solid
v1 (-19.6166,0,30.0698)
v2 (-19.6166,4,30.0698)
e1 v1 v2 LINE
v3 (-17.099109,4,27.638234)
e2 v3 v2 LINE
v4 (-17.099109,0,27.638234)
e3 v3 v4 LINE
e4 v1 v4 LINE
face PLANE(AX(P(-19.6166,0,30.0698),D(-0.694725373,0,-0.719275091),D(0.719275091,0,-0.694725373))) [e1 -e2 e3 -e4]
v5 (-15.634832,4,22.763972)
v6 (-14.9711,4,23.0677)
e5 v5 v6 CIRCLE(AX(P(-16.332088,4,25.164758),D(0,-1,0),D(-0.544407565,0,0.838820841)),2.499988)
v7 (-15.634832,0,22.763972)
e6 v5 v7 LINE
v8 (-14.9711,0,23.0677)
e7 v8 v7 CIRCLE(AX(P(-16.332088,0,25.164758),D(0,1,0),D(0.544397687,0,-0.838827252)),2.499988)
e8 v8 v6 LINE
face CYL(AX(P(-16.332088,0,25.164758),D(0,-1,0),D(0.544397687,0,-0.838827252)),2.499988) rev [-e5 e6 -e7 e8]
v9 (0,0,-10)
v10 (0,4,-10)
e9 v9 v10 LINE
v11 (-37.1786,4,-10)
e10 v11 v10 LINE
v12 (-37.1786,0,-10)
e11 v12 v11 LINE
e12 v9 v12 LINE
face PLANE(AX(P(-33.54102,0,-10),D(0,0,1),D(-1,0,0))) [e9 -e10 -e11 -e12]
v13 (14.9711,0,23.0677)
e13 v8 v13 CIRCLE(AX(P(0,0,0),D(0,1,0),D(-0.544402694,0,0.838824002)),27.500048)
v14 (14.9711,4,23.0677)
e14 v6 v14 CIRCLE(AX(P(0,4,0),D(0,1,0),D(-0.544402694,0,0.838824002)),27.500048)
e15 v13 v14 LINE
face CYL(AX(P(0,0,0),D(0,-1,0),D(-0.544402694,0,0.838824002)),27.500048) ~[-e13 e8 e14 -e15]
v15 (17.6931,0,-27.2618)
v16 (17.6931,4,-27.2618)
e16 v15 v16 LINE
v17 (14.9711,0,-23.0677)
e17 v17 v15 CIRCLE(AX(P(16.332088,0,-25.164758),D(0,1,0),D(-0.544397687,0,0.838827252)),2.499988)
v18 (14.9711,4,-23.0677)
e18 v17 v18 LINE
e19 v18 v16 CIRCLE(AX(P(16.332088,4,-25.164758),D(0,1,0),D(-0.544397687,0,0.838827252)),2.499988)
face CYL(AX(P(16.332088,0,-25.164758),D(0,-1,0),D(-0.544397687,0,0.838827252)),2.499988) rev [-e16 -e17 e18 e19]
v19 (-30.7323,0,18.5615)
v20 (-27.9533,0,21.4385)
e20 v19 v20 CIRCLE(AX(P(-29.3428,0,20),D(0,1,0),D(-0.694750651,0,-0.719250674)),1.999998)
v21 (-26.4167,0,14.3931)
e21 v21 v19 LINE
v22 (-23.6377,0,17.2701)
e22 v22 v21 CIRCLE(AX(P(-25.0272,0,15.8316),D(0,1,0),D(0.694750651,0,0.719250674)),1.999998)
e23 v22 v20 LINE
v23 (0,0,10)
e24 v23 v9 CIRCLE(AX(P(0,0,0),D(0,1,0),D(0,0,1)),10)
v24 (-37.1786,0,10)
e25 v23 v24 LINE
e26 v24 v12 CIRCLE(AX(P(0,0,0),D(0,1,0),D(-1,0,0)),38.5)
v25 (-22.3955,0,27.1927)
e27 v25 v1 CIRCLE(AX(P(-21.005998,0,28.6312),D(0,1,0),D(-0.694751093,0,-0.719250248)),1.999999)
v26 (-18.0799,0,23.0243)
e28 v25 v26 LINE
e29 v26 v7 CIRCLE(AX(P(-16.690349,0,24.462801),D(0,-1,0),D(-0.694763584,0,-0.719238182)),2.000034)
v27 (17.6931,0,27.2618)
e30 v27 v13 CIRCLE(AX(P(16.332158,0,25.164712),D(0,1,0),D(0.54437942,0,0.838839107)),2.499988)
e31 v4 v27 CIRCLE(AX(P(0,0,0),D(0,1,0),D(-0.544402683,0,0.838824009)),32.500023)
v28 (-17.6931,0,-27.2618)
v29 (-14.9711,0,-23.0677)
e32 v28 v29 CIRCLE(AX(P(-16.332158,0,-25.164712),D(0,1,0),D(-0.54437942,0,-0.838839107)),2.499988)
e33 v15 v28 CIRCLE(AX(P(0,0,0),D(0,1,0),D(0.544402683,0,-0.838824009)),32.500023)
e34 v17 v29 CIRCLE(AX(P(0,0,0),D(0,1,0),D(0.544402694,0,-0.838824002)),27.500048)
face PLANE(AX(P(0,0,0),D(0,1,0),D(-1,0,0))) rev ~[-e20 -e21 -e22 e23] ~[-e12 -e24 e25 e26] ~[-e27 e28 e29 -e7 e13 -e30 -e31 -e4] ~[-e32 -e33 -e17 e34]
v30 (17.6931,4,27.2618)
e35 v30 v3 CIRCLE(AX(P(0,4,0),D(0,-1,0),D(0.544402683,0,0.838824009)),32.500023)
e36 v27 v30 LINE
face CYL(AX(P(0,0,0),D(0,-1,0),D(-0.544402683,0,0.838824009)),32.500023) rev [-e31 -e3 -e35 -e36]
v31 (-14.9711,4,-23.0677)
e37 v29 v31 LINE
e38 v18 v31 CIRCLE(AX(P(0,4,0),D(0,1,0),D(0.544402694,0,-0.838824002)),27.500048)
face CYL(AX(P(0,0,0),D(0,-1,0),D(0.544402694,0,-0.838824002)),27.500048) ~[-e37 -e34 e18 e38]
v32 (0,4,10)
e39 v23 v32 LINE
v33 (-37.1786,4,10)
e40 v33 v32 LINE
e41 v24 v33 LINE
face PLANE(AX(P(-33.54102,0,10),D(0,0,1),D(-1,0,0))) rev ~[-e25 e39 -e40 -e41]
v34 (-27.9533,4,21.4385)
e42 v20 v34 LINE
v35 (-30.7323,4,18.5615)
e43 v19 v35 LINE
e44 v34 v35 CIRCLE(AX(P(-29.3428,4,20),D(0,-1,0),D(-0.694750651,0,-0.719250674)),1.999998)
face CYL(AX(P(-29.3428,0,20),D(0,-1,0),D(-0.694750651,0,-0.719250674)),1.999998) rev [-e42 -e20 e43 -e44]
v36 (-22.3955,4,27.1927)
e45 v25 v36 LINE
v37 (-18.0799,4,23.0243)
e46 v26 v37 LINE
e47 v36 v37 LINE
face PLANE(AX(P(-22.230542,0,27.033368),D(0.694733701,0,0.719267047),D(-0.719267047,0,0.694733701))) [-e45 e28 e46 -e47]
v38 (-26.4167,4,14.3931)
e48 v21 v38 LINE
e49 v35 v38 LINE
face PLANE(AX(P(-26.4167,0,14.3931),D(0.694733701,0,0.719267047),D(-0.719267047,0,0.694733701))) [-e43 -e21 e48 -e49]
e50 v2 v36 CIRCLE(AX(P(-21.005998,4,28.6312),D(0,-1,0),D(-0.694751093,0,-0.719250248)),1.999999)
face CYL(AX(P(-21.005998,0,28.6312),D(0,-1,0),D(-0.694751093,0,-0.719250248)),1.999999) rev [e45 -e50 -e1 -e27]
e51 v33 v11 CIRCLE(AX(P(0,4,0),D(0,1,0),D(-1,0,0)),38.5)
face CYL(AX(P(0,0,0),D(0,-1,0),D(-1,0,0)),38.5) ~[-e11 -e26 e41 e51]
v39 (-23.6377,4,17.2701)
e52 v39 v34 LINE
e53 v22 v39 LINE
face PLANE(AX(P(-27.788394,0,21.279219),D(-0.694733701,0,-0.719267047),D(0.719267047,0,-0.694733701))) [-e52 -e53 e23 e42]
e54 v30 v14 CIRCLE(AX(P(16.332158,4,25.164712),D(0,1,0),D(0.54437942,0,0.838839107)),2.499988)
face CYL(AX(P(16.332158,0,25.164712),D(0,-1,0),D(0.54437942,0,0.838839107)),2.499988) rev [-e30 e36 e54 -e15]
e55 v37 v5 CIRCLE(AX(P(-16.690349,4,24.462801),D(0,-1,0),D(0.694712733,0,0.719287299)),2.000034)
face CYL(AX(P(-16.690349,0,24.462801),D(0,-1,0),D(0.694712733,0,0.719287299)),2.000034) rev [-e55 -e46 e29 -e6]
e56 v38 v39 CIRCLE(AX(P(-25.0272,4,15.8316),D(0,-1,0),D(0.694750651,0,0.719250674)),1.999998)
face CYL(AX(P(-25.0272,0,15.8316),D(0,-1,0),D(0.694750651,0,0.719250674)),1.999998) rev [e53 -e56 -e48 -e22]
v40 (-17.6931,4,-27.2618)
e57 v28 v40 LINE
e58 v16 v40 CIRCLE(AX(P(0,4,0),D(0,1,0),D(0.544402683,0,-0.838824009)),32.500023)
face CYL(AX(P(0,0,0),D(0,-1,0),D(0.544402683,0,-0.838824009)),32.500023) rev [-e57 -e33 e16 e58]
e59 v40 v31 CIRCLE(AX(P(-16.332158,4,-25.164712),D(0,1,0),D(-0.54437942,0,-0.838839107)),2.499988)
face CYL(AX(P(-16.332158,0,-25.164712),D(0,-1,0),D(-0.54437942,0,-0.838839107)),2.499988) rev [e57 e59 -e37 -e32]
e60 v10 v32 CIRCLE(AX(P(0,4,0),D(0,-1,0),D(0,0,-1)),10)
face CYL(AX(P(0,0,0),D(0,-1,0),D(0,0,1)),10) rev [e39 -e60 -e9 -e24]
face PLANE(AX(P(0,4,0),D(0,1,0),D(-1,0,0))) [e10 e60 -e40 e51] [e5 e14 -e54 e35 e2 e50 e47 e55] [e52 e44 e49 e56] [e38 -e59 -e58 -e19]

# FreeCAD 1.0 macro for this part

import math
import FreeCAD as App
import Part
import Sketcher
from FreeCAD import Vector
Q = App.Units.Quantity

doc = App.newDocument("Part")
body = doc.addObject("PartDesign::Body", "Body")

# Sketch on XZ plane
sketch1 = body.newObject("Sketcher::SketchObject", "Sketch")
sketch1.AttachmentSupport = (doc.getObject("XZ_Plane"), [""])
sketch1.MapMode = "FlatFace"
sketch1.addGeometry(Part.ArcOfCircle(Part.Circle(Vector(0, 0, 0), Vector(0, 0, 1), 38.5), math.radians(-165), math.radians(165)), False)
sketch1.addGeometry(Part.LineSegment(Vector(-37.2, -10, 0), Vector(0, -10, 0)), False)
sketch1.addGeometry(Part.ArcOfCircle(Part.Circle(Vector(0, 0, 0), Vector(0, 0, 1), 10), math.radians(-90), math.radians(90)), False)
sketch1.addGeometry(Part.LineSegment(Vector(0, 10, 0), Vector(-37.2, 10, 0)), False)
sketch1.addGeometry(Part.ArcOfCircle(Part.Circle(Vector(16.3, -25.2, 0), Vector(0, 0, 1), 2.5), math.radians(-57), math.radians(123)), False)
sketch1.addGeometry(Part.ArcOfCircle(Part.Circle(Vector(0, 0, 0), Vector(0, 0, 1), 27.5), math.radians(-123), math.radians(-57)), False)
sketch1.addGeometry(Part.ArcOfCircle(Part.Circle(Vector(-16.3, -25.2, 0), Vector(0, 0, 1), 2.5), math.radians(57), math.radians(237)), False)
sketch1.addGeometry(Part.ArcOfCircle(Part.Circle(Vector(0, 0, 0), Vector(0, 0, 1), 32.5), math.radians(-123), math.radians(-57)), False)
sketch1.addGeometry(Part.ArcOfCircle(Part.Circle(Vector(0, 0, 0), Vector(0, 0, 1), 32.5), math.radians(57), math.radians(123)), False)
sketch1.addGeometry(Part.ArcOfCircle(Part.Circle(Vector(-16.3, 25.2, 0), Vector(0, 0, 1), 2.5), math.radians(123), math.radians(303)), False)
sketch1.addGeometry(Part.ArcOfCircle(Part.Circle(Vector(0, 0, 0), Vector(0, 0, 1), 27.5), math.radians(57), math.radians(123)), False)
sketch1.addGeometry(Part.ArcOfCircle(Part.Circle(Vector(16.3, 25.2, 0), Vector(0, 0, 1), 2.5), math.radians(-123), math.radians(57)), False)
sketch1.addConstraint(Sketcher.Constraint("Coincident", 0, 1, 1, 1))
sketch1.addConstraint(Sketcher.Constraint("Tangent", 1, 2, 2, 1))
sketch1.addConstraint(Sketcher.Constraint("Tangent", 2, 2, 3, 1))
sketch1.addConstraint(Sketcher.Constraint("Coincident", 3, 2, 0, 2))
sketch1.addConstraint(Sketcher.Constraint("Tangent", 4, 2, 5, 2))
sketch1.addConstraint(Sketcher.Constraint("Tangent", 5, 1, 6, 1))
sketch1.addConstraint(Sketcher.Constraint("Tangent", 6, 2, 7, 1))
sketch1.addConstraint(Sketcher.Constraint("Tangent", 7, 2, 4, 1))
sketch1.addConstraint(Sketcher.Constraint("Tangent", 8, 2, 9, 1))
sketch1.addConstraint(Sketcher.Constraint("Tangent", 9, 2, 10, 2))
sketch1.addConstraint(Sketcher.Constraint("Tangent", 10, 1, 11, 1))
sketch1.addConstraint(Sketcher.Constraint("Tangent", 11, 2, 8, 1))
sketch1.addConstraint(Sketcher.Constraint("Horizontal", 1))
sketch1.addConstraint(Sketcher.Constraint("Horizontal", 3))
sketch1.addConstraint(Sketcher.Constraint("Coincident", 0, 3, -1, 1))
sketch1.addConstraint(Sketcher.Constraint("Coincident", 2, 3, -1, 1))
sketch1.addConstraint(Sketcher.Constraint("Coincident", 5, 3, -1, 1))
sketch1.addConstraint(Sketcher.Constraint("Coincident", 7, 3, -1, 1))
sketch1.addConstraint(Sketcher.Constraint("Coincident", 8, 3, -1, 1))
sketch1.addConstraint(Sketcher.Constraint("Coincident", 10, 3, -1, 1))
sketch1.addConstraint(Sketcher.Constraint("Equal", 7, 8))
sketch1.addConstraint(Sketcher.Constraint("Equal", 6, 9))
sketch1.addConstraint(Sketcher.Constraint("Horizontal", 4, 3, 6, 3))
sketch1.addConstraint(Sketcher.Constraint("Horizontal", 9, 3, 11, 3))
sketch1.addConstraint(Sketcher.Constraint("Vertical", 6, 3, 9, 3))
sketch1.addConstraint(Sketcher.Constraint("Radius", 2, Q("10 mm")))
sketch1.addConstraint(Sketcher.Constraint("Radius", 0, Q("38.5 mm")))
sketch1.addConstraint(Sketcher.Constraint("Radius", 4, Q("2.5 mm")))
sketch1.addConstraint(Sketcher.Constraint("Radius", 5, Q("27.5 mm")))
sketch1.addConstraint(Sketcher.Constraint("DistanceX", -1, 1, 4, 3, Q("16.332 mm")))
pad1 = body.newObject("PartDesign::Pad", "Pad")
pad1.Profile = sketch1
pad1.Length = 4
pad1.Reversed = True

# Sketch on XZ plane
sketch2 = body.newObject("Sketcher::SketchObject", "Sketch001")
sketch2.AttachmentSupport = (doc.getObject("XZ_Plane"), [""])
sketch2.MapMode = "FlatFace"
sketch2.addGeometry(Part.LineSegment(Vector(-26.4, 14.4, 0), Vector(-30.7, 18.6, 0)), False)
sketch2.addGeometry(Part.ArcOfCircle(Part.Circle(Vector(-29.3, 20, 0), Vector(0, 0, 1), 2), math.radians(46), math.radians(226)), False)
sketch2.addGeometry(Part.LineSegment(Vector(-28, 21.4, 0), Vector(-23.6, 17.3, 0)), False)
sketch2.addGeometry(Part.ArcOfCircle(Part.Circle(Vector(-25, 15.8, 0), Vector(0, 0, 1), 2), math.radians(-134), math.radians(46)), False)
sketch2.addGeometry(Part.LineSegment(Vector(-19.6, 30.1, 0), Vector(-15.3, 25.9, 0)), False)
sketch2.addGeometry(Part.ArcOfCircle(Part.Circle(Vector(-16.7, 24.5, 0), Vector(0, 0, 1), 2), math.radians(-134), math.radians(46)), False)
sketch2.addGeometry(Part.LineSegment(Vector(-18.1, 23, 0), Vector(-22.4, 27.2, 0)), False)
sketch2.addGeometry(Part.ArcOfCircle(Part.Circle(Vector(-21, 28.6, 0), Vector(0, 0, 1), 2), math.radians(46), math.radians(226)), False)
sketch2.addConstraint(Sketcher.Constraint("Tangent", 0, 2, 1, 2))
sketch2.addConstraint(Sketcher.Constraint("Tangent", 1, 1, 2, 1))
sketch2.addConstraint(Sketcher.Constraint("Tangent", 2, 2, 3, 2))
sketch2.addConstraint(Sketcher.Constraint("Tangent", 3, 1, 0, 1))
sketch2.addConstraint(Sketcher.Constraint("Tangent", 4, 2, 5, 2))
sketch2.addConstraint(Sketcher.Constraint("Tangent", 5, 1, 6, 1))
sketch2.addConstraint(Sketcher.Constraint("Tangent", 6, 2, 7, 2))
sketch2.addConstraint(Sketcher.Constraint("Tangent", 7, 1, 4, 1))
sketch2.addConstraint(Sketcher.Constraint("Equal", 1, 3))
sketch2.addConstraint(Sketcher.Constraint("Equal", 3, 5))
sketch2.addConstraint(Sketcher.Constraint("Equal", 5, 7))
sketch2.addConstraint(Sketcher.Constraint("Parallel", 2, 4))
sketch2.addConstraint(Sketcher.Constraint("Equal", 2, 4))
sketch2.addConstraint(Sketcher.Constraint("Radius", 1, Q("2 mm")))
sketch2.addConstraint(Sketcher.Constraint("Distance", 0, Q("6 mm")))
sketch2.addConstraint(Sketcher.Constraint("DistanceY", -1, 1, 1, 3, Q("20 mm")))
sketch2.addConstraint(Sketcher.Constraint("DistanceY", -1, 1, 2, 2, Q("17.27 mm")))
sketch2.addConstraint(Sketcher.Constraint("DistanceX", 5, 1, -1, 1, Q("18.08 mm")))
sketch2.addConstraint(Sketcher.Constraint("DistanceX", 0, 2, 5, 3, Q("14.042 mm")))
sketch2.addConstraint(Sketcher.Constraint("DistanceY", 1, 1, 4, 2, Q("4.463 mm")))
pocket1 = body.newObject("PartDesign::Pocket", "Pocket")
pocket1.Profile = sketch2
pocket1.Length = 10

doc.recompute()
